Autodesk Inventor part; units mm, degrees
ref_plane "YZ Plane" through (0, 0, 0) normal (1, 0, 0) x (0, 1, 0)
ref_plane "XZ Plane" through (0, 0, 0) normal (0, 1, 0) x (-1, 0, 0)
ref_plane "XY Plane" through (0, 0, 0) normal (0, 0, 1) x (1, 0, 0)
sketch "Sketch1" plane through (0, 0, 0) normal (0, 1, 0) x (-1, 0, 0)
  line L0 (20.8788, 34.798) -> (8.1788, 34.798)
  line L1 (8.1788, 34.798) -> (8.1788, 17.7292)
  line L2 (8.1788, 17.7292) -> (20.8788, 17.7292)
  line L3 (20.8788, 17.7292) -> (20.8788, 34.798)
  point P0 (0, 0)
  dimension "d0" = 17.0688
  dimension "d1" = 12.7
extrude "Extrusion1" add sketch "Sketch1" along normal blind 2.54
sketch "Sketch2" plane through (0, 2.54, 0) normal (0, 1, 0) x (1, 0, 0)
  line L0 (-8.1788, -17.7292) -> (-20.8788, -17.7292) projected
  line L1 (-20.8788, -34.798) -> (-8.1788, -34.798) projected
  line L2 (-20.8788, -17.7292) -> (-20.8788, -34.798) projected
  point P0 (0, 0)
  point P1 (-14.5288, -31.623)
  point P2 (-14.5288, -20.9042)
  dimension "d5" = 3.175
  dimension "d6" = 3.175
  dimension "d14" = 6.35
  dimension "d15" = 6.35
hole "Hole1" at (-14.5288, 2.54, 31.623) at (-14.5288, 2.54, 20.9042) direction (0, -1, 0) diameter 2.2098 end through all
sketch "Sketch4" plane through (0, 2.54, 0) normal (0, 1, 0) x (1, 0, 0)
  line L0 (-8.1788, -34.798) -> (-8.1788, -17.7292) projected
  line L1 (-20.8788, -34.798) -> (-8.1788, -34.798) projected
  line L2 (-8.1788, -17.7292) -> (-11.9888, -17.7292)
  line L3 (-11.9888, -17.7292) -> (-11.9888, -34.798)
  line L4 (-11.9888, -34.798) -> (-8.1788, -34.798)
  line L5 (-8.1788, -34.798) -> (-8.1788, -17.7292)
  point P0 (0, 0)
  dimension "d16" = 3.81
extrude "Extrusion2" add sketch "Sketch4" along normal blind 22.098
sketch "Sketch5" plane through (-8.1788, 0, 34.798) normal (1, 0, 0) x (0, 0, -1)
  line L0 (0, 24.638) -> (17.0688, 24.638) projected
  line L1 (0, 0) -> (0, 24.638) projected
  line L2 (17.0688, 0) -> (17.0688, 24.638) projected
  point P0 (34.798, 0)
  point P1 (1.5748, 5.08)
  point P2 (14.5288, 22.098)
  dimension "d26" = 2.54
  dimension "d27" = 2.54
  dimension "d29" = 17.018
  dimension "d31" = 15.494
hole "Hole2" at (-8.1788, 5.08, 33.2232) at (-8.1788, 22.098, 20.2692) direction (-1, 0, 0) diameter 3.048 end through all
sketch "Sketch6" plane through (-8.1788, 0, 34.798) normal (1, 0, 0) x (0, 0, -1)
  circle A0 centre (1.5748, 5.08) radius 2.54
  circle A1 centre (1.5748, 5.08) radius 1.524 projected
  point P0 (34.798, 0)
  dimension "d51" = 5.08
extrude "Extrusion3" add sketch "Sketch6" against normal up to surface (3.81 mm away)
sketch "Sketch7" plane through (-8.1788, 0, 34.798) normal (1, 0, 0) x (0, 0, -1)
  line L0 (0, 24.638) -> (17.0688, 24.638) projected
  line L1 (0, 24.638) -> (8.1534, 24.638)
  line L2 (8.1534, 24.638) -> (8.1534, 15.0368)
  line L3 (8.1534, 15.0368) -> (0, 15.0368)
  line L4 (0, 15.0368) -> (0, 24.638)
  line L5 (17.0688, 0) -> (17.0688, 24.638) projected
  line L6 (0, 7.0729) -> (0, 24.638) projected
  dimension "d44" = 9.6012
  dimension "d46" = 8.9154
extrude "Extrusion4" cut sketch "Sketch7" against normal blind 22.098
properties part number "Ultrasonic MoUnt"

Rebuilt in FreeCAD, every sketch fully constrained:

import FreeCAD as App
import Part
import Sketcher

V = App.Vector
Q = App.Units.Quantity

doc = App.newDocument("Part")
body = doc.addObject("PartDesign::Body", "Body")

# Sketch on XZ plane
sketch1 = doc.addObject("Sketcher::SketchObject", "Sketch")
body.addObject(sketch1)
sketch1.AttachmentSupport = (doc.XZ_Plane, [""])
sketch1.MapMode = "FlatFace"
sketch1.addGeometry(Part.LineSegment(V(-20.8788, 17.7292, 0), V(-20.8788, 34.798, 0)), False)
sketch1.addGeometry(Part.LineSegment(V(-20.8788, 34.798, 0), V(-8.1788, 34.798, 0)), False)
sketch1.addGeometry(Part.LineSegment(V(-8.1788, 34.798, 0), V(-8.1788, 17.7292, 0)), False)
sketch1.addGeometry(Part.LineSegment(V(-8.1788, 17.7292, 0), V(-20.8788, 17.7292, 0)), False)
sketch1.addConstraint(Sketcher.Constraint("Coincident", 0, 2, 1, 1))
sketch1.addConstraint(Sketcher.Constraint("Coincident", 1, 2, 2, 1))
sketch1.addConstraint(Sketcher.Constraint("Coincident", 2, 2, 3, 1))
sketch1.addConstraint(Sketcher.Constraint("Coincident", 3, 2, 0, 1))
sketch1.addConstraint(Sketcher.Constraint("Vertical", 0))
sketch1.addConstraint(Sketcher.Constraint("Horizontal", 1))
sketch1.addConstraint(Sketcher.Constraint("Vertical", 2))
sketch1.addConstraint(Sketcher.Constraint("Horizontal", 3))
sketch1.addConstraint(Sketcher.Constraint("DistanceX", 1, 1, 1, 2, Q("0.5 in")))
sketch1.addConstraint(Sketcher.Constraint("DistanceY", 0, 1, 0, 2, Q("0.672 in")))
sketch1.addConstraint(Sketcher.Constraint("DistanceY", -1, 1, 0, 2, Q("1.37 in")))
sketch1.addConstraint(Sketcher.Constraint("DistanceX", 0, 2, -1, 1, Q("0.822 in")))
pad1 = doc.addObject("PartDesign::Pad", "Pad")
body.addObject(pad1)
pad1.Profile = sketch1
pad1.Length = Q("0.1 in")
pad1.Reversed = True

# Sketch on XZ plane
sketch2 = doc.addObject("Sketcher::SketchObject", "Sketch001")
body.addObject(sketch2)
sketch2.AttachmentSupport = (doc.XZ_Plane, [""])
sketch2.MapMode = "FlatFace"
sketch2.AttachmentOffset = App.Placement(V(0, 0, -0.1 * 25.4), App.Rotation())
sketch2.addGeometry(Part.Circle(V(-14.5288, 31.623, 0), V(0, 0, 1), 1.1049), False)
sketch2.addGeometry(Part.Circle(V(-14.5288, 20.9042, 0), V(0, 0, 1), 1.1049), False)
sketch2.addConstraint(Sketcher.Constraint("Equal", 0, 1))
sketch2.addConstraint(Sketcher.Constraint("Vertical", 0, 3, 1, 3))
sketch2.addConstraint(Sketcher.Constraint("Diameter", 0, Q("0.087 in")))
sketch2.addConstraint(Sketcher.Constraint("DistanceX", 0, 3, -1, 1, Q("0.572 in")))
sketch2.addConstraint(Sketcher.Constraint("DistanceY", -1, 1, 0, 3, Q("1.245 in")))
sketch2.addConstraint(Sketcher.Constraint("DistanceY", -1, 1, 1, 3, Q("0.823 in")))
doc.recompute()
hole = doc.addObject("PartDesign::Hole", "Hole")
body.addObject(hole)
hole.Profile = sketch2
hole.ThreadType = "None"
hole.Diameter = Q("0.087 in")
hole.DepthType = "ThroughAll"
hole.Reversed = True

# Sketch on XZ plane
sketch3 = doc.addObject("Sketcher::SketchObject", "Sketch002")
body.addObject(sketch3)
sketch3.AttachmentSupport = (doc.XZ_Plane, [""])
sketch3.MapMode = "FlatFace"
sketch3.AttachmentOffset = App.Placement(V(0, 0, -0.1 * 25.4), App.Rotation())
sketch3.addGeometry(Part.LineSegment(V(-11.9888, 34.798, 0), V(-8.1788, 34.798, 0)), False)
sketch3.addGeometry(Part.LineSegment(V(-8.1788, 34.798, 0), V(-8.1788, 17.7292, 0)), False)
sketch3.addGeometry(Part.LineSegment(V(-8.1788, 17.7292, 0), V(-11.9888, 17.7292, 0)), False)
sketch3.addGeometry(Part.LineSegment(V(-11.9888, 17.7292, 0), V(-11.9888, 34.798, 0)), False)
sketch3.addConstraint(Sketcher.Constraint("Coincident", 0, 2, 1, 1))
sketch3.addConstraint(Sketcher.Constraint("Coincident", 1, 2, 2, 1))
sketch3.addConstraint(Sketcher.Constraint("Coincident", 2, 2, 3, 1))
sketch3.addConstraint(Sketcher.Constraint("Coincident", 3, 2, 0, 1))
sketch3.addConstraint(Sketcher.Constraint("Horizontal", 0))
sketch3.addConstraint(Sketcher.Constraint("Vertical", 1))
sketch3.addConstraint(Sketcher.Constraint("Horizontal", 2))
sketch3.addConstraint(Sketcher.Constraint("Vertical", 3))
sketch3.addConstraint(Sketcher.Constraint("DistanceX", 0, 1, 0, 2, Q("0.15 in")))
sketch3.addConstraint(Sketcher.Constraint("DistanceY", 1, 2, 1, 1, Q("0.672 in")))
sketch3.addConstraint(Sketcher.Constraint("DistanceY", -1, 1, 0, 2, Q("1.37 in")))
sketch3.addConstraint(Sketcher.Constraint("DistanceX", 0, 2, -1, 1, Q("0.322 in")))
pad2 = doc.addObject("PartDesign::Pad", "Pad001")
body.addObject(pad2)
pad2.Profile = sketch3
pad2.Length = Q("0.87 in")
pad2.Reversed = True

# Sketch on YZ plane
sketch4 = doc.addObject("Sketcher::SketchObject", "Sketch003")
body.addObject(sketch4)
sketch4.AttachmentSupport = (doc.YZ_Plane, [""])
sketch4.MapMode = "FlatFace"
sketch4.AttachmentOffset = App.Placement(V(0, 0, -0.322 * 25.4), App.Rotation())
sketch4.addGeometry(Part.Circle(V(5.08, 33.2232, 0), V(0, 0, 1), 1.524), False)
sketch4.addGeometry(Part.Circle(V(22.098, 20.2692, 0), V(0, 0, 1), 1.524), False)
sketch4.addConstraint(Sketcher.Constraint("Equal", 0, 1))
sketch4.addConstraint(Sketcher.Constraint("Diameter", 0, Q("0.12 in")))
sketch4.addConstraint(Sketcher.Constraint("DistanceX", -1, 1, 0, 3, Q("0.2 in")))
sketch4.addConstraint(Sketcher.Constraint("DistanceX", -1, 1, 1, 3, Q("0.87 in")))
sketch4.addConstraint(Sketcher.Constraint("DistanceY", 1, 3, 0, 3, Q("0.51 in")))
sketch4.addConstraint(Sketcher.Constraint("DistanceY", -1, 1, 0, 3, Q("1.308 in")))
doc.recompute()
hole2 = doc.addObject("PartDesign::Hole", "Hole001")
body.addObject(hole2)
hole2.Profile = sketch4
hole2.ThreadType = "None"
hole2.Diameter = Q("0.12 in")
hole2.DepthType = "ThroughAll"

# Sketch on YZ plane
sketch5 = doc.addObject("Sketcher::SketchObject", "Sketch004")
body.addObject(sketch5)
sketch5.AttachmentSupport = (doc.YZ_Plane, [""])
sketch5.MapMode = "FlatFace"
sketch5.AttachmentOffset = App.Placement(V(0, 0, -0.322 * 25.4), App.Rotation())
sketch5.addGeometry(Part.Circle(V(5.08, 33.2232, 0), V(0, 0, 1), 2.54), False)
sketch5.addGeometry(Part.Circle(V(5.08, 33.2232, 0), V(0, 0, 1), 1.524), False)
sketch5.addConstraint(Sketcher.Constraint("Coincident", 1, 3, 0, 3))
sketch5.addConstraint(Sketcher.Constraint("Diameter", 0, Q("0.2 in")))
sketch5.addConstraint(Sketcher.Constraint("DistanceX", -1, 1, 0, 3, Q("0.2 in")))
sketch5.addConstraint(Sketcher.Constraint("Diameter", 1, Q("0.12 in")))
sketch5.addConstraint(Sketcher.Constraint("DistanceY", -1, 1, 0, 3, Q("1.308 in")))
pad3 = doc.addObject("PartDesign::Pad", "Pad002")
body.addObject(pad3)
pad3.Profile = sketch5
pad3.Length = Q("0.15 in")
pad3.Reversed = True

# Sketch on YZ plane
sketch6 = doc.addObject("Sketcher::SketchObject", "Sketch005")
body.addObject(sketch6)
sketch6.AttachmentSupport = (doc.YZ_Plane, [""])
sketch6.MapMode = "FlatFace"
sketch6.AttachmentOffset = App.Placement(V(0, 0, -0.322 * 25.4), App.Rotation())
sketch6.addGeometry(Part.LineSegment(V(24.638, 26.6446, 0), V(24.638, 34.798, 0)), False)
sketch6.addGeometry(Part.LineSegment(V(24.638, 34.798, 0), V(15.0368, 34.798, 0)), False)
sketch6.addGeometry(Part.LineSegment(V(15.0368, 34.798, 0), V(15.0368, 26.6446, 0)), False)
sketch6.addGeometry(Part.LineSegment(V(15.0368, 26.6446, 0), V(24.638, 26.6446, 0)), False)
sketch6.addConstraint(Sketcher.Constraint("Coincident", 0, 2, 1, 1))
sketch6.addConstraint(Sketcher.Constraint("Coincident", 1, 2, 2, 1))
sketch6.addConstraint(Sketcher.Constraint("Coincident", 2, 2, 3, 1))
sketch6.addConstraint(Sketcher.Constraint("Coincident", 3, 2, 0, 1))
sketch6.addConstraint(Sketcher.Constraint("Vertical", 0))
sketch6.addConstraint(Sketcher.Constraint("Horizontal", 1))
sketch6.addConstraint(Sketcher.Constraint("Vertical", 2))
sketch6.addConstraint(Sketcher.Constraint("Horizontal", 3))
sketch6.addConstraint(Sketcher.Constraint("DistanceX", 1, 2, 1, 1, Q("0.378 in")))
sketch6.addConstraint(Sketcher.Constraint("DistanceY", 0, 1, 0, 2, Q("0.321 in")))
sketch6.addConstraint(Sketcher.Constraint("DistanceX", -1, 1, 0, 2, Q("0.97 in")))
sketch6.addConstraint(Sketcher.Constraint("DistanceY", -1, 1, 0, 2, Q("1.37 in")))
pocket1 = doc.addObject("PartDesign::Pocket", "Pocket")
body.addObject(pocket1)
pocket1.Profile = sketch6
pocket1.Length = Q("0.87 in")

doc.recompute()
